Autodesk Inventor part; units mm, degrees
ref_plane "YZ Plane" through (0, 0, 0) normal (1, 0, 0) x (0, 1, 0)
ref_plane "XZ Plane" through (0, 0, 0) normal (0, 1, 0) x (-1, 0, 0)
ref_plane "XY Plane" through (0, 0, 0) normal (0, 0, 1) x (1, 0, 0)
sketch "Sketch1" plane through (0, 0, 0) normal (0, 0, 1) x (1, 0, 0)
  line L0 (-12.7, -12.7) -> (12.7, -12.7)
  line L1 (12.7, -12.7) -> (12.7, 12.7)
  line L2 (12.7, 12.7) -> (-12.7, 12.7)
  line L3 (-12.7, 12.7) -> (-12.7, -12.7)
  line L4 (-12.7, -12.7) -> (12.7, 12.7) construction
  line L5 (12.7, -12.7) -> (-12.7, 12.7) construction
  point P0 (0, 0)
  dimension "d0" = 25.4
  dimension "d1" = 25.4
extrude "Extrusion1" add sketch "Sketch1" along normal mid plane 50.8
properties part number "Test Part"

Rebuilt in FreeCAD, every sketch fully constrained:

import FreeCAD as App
import Part
import Sketcher
from FreeCAD import Vector
Q = App.Units.Quantity

doc = App.newDocument("Part")
body = doc.addObject("PartDesign::Body", "Body")

# Sketch on XY plane
sketch1 = body.newObject("Sketcher::SketchObject", "Sketch")
sketch1.AttachmentSupport = (doc.getObject("XY_Plane"), [""])
sketch1.MapMode = "FlatFace"
sketch1.addGeometry(Part.LineSegment(Vector(-12.7, 12.7, 0), Vector(-12.7, -12.7, 0)), False)
sketch1.addGeometry(Part.LineSegment(Vector(-12.7, -12.7, 0), Vector(12.7, -12.7, 0)), False)
sketch1.addGeometry(Part.LineSegment(Vector(12.7, -12.7, 0), Vector(12.7, 12.7, 0)), False)
sketch1.addGeometry(Part.LineSegment(Vector(12.7, 12.7, 0), Vector(-12.7, 12.7, 0)), False)
sketch1.addConstraint(Sketcher.Constraint("Coincident", 0, 2, 1, 1))
sketch1.addConstraint(Sketcher.Constraint("Coincident", 1, 2, 2, 1))
sketch1.addConstraint(Sketcher.Constraint("Coincident", 2, 2, 3, 1))
sketch1.addConstraint(Sketcher.Constraint("Coincident", 3, 2, 0, 1))
sketch1.addConstraint(Sketcher.Constraint("Vertical", 0))
sketch1.addConstraint(Sketcher.Constraint("Horizontal", 1))
sketch1.addConstraint(Sketcher.Constraint("Vertical", 2))
sketch1.addConstraint(Sketcher.Constraint("Horizontal", 3))
sketch1.addConstraint(Sketcher.Constraint("Symmetric", 0, 2, 2, 2, -1, 1))
sketch1.addConstraint(Sketcher.Constraint("Equal", 3, 0))
sketch1.addConstraint(Sketcher.Constraint("DistanceX", 1, 1, 1, 2, Q("1 in")))
pad1 = body.newObject("PartDesign::Pad", "Pad")
pad1.Profile = sketch1
pad1.Length = Q("2 in")
pad1.Midplane = True

doc.recompute()
